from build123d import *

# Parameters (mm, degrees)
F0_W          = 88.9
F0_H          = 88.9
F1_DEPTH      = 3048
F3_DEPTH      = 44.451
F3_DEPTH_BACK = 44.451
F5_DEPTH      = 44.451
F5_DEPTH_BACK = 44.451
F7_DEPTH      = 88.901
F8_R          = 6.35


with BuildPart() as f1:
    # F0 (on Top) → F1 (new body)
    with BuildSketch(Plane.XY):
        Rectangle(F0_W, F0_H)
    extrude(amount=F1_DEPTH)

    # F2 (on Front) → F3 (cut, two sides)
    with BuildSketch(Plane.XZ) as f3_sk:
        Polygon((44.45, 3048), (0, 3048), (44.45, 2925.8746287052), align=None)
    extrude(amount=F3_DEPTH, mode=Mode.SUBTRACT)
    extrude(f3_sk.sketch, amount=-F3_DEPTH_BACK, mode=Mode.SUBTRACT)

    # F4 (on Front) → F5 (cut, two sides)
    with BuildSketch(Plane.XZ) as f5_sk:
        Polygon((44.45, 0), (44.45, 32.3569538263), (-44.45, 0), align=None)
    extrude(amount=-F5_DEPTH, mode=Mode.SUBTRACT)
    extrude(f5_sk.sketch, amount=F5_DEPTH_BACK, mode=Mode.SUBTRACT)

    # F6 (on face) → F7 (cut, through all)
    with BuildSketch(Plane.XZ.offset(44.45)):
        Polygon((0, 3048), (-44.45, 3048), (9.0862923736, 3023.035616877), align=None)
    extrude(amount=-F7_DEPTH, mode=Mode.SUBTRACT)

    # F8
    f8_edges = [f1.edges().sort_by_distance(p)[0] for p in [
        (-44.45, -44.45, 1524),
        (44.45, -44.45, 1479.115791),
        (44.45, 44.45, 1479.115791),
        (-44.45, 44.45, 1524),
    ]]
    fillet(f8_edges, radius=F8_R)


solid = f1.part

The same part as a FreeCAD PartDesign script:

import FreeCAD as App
import Part
import Sketcher

V = App.Vector
Q = App.Units.Quantity


def edges_at(feature, points):
    """Names of the edges that pass closest to the given points."""
    edges = feature.Shape.Edges
    near = lambda p: min(range(len(edges)), key=lambda i: edges[i].distToShape(Part.Vertex(*p))[0])
    return sorted({f"Edge{near(p) + 1}" for p in points})

doc = App.newDocument("Part")
params = doc.addObject("Spreadsheet::Sheet", "Params")
for row, (alias, value) in enumerate([
    ("sketch1_width", "3.5 in"),
    ("pad1_length", "120 in"),
    ("sketch2_width", "1.75 in"),
    ("sketch3_width", "3.5 in"),
    ("sketch4_width", "1.75 in"),
    ("fillet_radius", "0.25 in"),
], start=1):
    params.set(f"A{row}", alias)
    params.set(f"B{row}", "=" + value)
    params.setAlias(f"B{row}", alias)

body = doc.addObject("PartDesign::Body", "Body")

sketch1 = doc.addObject("Sketcher::SketchObject", "Sketch")
body.addObject(sketch1)
sketch1.AttachmentSupport = (doc.XY_Plane, [""])
sketch1.MapMode = "FlatFace"
sketch1.addGeometry(Part.LineSegment(V(-44.45, 44.45, 0), V(-44.45, -44.45, 0)), False)
sketch1.addGeometry(Part.LineSegment(V(-44.45, -44.45, 0), V(44.45, -44.45, 0)), False)
sketch1.addGeometry(Part.LineSegment(V(44.45, -44.45, 0), V(44.45, 44.45, 0)), False)
sketch1.addGeometry(Part.LineSegment(V(44.45, 44.45, 0), V(-44.45, 44.45, 0)), False)
sketch1.addConstraint(Sketcher.Constraint("Coincident", 0, 2, 1, 1))
sketch1.addConstraint(Sketcher.Constraint("Coincident", 1, 2, 2, 1))
sketch1.addConstraint(Sketcher.Constraint("Coincident", 2, 2, 3, 1))
sketch1.addConstraint(Sketcher.Constraint("Coincident", 3, 2, 0, 1))
sketch1.addConstraint(Sketcher.Constraint("Vertical", 0))
sketch1.addConstraint(Sketcher.Constraint("Horizontal", 1))
sketch1.addConstraint(Sketcher.Constraint("Vertical", 2))
sketch1.addConstraint(Sketcher.Constraint("Horizontal", 3))
sketch1.addConstraint(Sketcher.Constraint("Symmetric", 0, 2, 2, 2, -1, 1))
sketch1.addConstraint(Sketcher.Constraint("Equal", 3, 0))
sketch1.addConstraint(Sketcher.Constraint("DistanceX", 1, 1, 1, 2, Q("3.5 in")))
sketch1.setExpression("Constraints[10]", "Params.sketch1_width")
pad1 = doc.addObject("PartDesign::Pad", "Pad")
body.addObject(pad1)
pad1.Profile = sketch1
pad1.setExpression("Length", "Params.pad1_length")

sketch2 = doc.addObject("Sketcher::SketchObject", "Sketch001")
body.addObject(sketch2)
sketch2.AttachmentSupport = (doc.XZ_Plane, [""])
sketch2.MapMode = "FlatFace"
sketch2.addGeometry(Part.LineSegment(V(44.45, 3048, 0), V(0, 3048, 0)), False)
sketch2.addGeometry(Part.LineSegment(V(0, 3048, 0), V(44.45, 2925.874629, 0)), False)
sketch2.addGeometry(Part.LineSegment(V(44.45, 2925.874629, 0), V(44.45, 3048, 0)), False)
sketch2.addConstraint(Sketcher.Constraint("Coincident", 0, 2, 1, 1))
sketch2.addConstraint(Sketcher.Constraint("Coincident", 1, 2, 2, 1))
sketch2.addConstraint(Sketcher.Constraint("Coincident", 2, 2, 0, 1))
sketch2.addConstraint(Sketcher.Constraint("Horizontal", 0))
sketch2.addConstraint(Sketcher.Constraint("Vertical", 2))
sketch2.addConstraint(Sketcher.Constraint("PointOnObject", 0, 2, -2))
sketch2.addConstraint(Sketcher.Constraint("DistanceY", -1, 1, 0, 2, Q("120 in")))
sketch2.addConstraint(Sketcher.Constraint("Angle", 1, Q("-70 deg")))
sketch2.addConstraint(Sketcher.Constraint("DistanceX", 0, 2, 0, 1, Q("1.75 in")))
sketch2.setExpression("Constraints[8]", "Params.sketch2_width")
pocket1 = doc.addObject("PartDesign::Pocket", "Pocket")
body.addObject(pocket1)
pocket1.Profile = sketch2
pocket1.Type = "ThroughAll"
pocket1.Midplane = True

sketch3 = doc.addObject("Sketcher::SketchObject", "Sketch002")
body.addObject(sketch3)
sketch3.AttachmentSupport = (doc.XZ_Plane, [""])
sketch3.MapMode = "FlatFace"
sketch3.addGeometry(Part.LineSegment(V(44.45, 0, 0), V(44.45, 32.356954, 0)), False)
sketch3.addGeometry(Part.LineSegment(V(44.45, 32.356954, 0), V(-44.45, 0, 0)), False)
sketch3.addGeometry(Part.LineSegment(V(-44.45, 0, 0), V(44.45, 0, 0)), False)
sketch3.addConstraint(Sketcher.Constraint("Coincident", 0, 2, 1, 1))
sketch3.addConstraint(Sketcher.Constraint("Coincident", 1, 2, 2, 1))
sketch3.addConstraint(Sketcher.Constraint("Coincident", 2, 2, 0, 1))
sketch3.addConstraint(Sketcher.Constraint("Vertical", 0))
sketch3.addConstraint(Sketcher.Constraint("Horizontal", 2))
sketch3.addConstraint(Sketcher.Constraint("Symmetric", 1, 2, 2, 2, -1, 1))
sketch3.addConstraint(Sketcher.Constraint("DistanceX", 2, 1, 2, 2, Q("3.5 in")))
sketch3.addConstraint(Sketcher.Constraint("Angle", 1, Q("-160 deg")))
sketch3.setExpression("Constraints[6]", "Params.sketch3_width")
pocket2 = doc.addObject("PartDesign::Pocket", "Pocket001")
body.addObject(pocket2)
pocket2.Profile = sketch3
pocket2.Type = "ThroughAll"
pocket2.Midplane = True

sketch4 = doc.addObject("Sketcher::SketchObject", "Sketch003")
body.addObject(sketch4)
sketch4.AttachmentSupport = (doc.XZ_Plane, [""])
sketch4.MapMode = "FlatFace"
sketch4.AttachmentOffset = App.Placement(V(0, 0, 1.75 * 25.4), App.Rotation())
sketch4.addGeometry(Part.LineSegment(V(0, 3048, 0), V(-44.45, 3048, 0)), False)
sketch4.addGeometry(Part.LineSegment(V(-44.45, 3048, 0), V(9.086292, 3023.035617, 0)), False)
sketch4.addGeometry(Part.LineSegment(V(9.086292, 3023.035617, 0), V(0, 3048, 0)), False)
sketch4.addConstraint(Sketcher.Constraint("Coincident", 0, 2, 1, 1))
sketch4.addConstraint(Sketcher.Constraint("Coincident", 1, 2, 2, 1))
sketch4.addConstraint(Sketcher.Constraint("Coincident", 2, 2, 0, 1))
sketch4.addConstraint(Sketcher.Constraint("Horizontal", 0))
sketch4.addConstraint(Sketcher.Constraint("PointOnObject", 2, 2, -2))
sketch4.addConstraint(Sketcher.Constraint("DistanceY", -1, 1, 0, 2, Q("120 in")))
sketch4.addConstraint(Sketcher.Constraint("Angle", 1, Q("-25 deg")))
sketch4.addConstraint(Sketcher.Constraint("Angle", 2, Q("110 deg")))
sketch4.addConstraint(Sketcher.Constraint("DistanceX", 0, 2, 0, 1, Q("1.75 in")))
sketch4.setExpression("Constraints[8]", "Params.sketch4_width")
pocket3 = doc.addObject("PartDesign::Pocket", "Pocket002")
body.addObject(pocket3)
pocket3.Profile = sketch4
pocket3.Type = "ThroughAll"
doc.recompute()

fillet = doc.addObject("PartDesign::Fillet", "Fillet")
body.addObject(fillet)
fillet.Base = (pocket3, edges_at(pocket3, [
    (-44.45, -44.45, 1524),
    (44.45, -44.45, 1479.116),
    (44.45, 44.45, 1479.116),
    (-44.45, 44.45, 1524),
]))
fillet.setExpression("Radius", "Params.fillet_radius")

doc.recompute()
